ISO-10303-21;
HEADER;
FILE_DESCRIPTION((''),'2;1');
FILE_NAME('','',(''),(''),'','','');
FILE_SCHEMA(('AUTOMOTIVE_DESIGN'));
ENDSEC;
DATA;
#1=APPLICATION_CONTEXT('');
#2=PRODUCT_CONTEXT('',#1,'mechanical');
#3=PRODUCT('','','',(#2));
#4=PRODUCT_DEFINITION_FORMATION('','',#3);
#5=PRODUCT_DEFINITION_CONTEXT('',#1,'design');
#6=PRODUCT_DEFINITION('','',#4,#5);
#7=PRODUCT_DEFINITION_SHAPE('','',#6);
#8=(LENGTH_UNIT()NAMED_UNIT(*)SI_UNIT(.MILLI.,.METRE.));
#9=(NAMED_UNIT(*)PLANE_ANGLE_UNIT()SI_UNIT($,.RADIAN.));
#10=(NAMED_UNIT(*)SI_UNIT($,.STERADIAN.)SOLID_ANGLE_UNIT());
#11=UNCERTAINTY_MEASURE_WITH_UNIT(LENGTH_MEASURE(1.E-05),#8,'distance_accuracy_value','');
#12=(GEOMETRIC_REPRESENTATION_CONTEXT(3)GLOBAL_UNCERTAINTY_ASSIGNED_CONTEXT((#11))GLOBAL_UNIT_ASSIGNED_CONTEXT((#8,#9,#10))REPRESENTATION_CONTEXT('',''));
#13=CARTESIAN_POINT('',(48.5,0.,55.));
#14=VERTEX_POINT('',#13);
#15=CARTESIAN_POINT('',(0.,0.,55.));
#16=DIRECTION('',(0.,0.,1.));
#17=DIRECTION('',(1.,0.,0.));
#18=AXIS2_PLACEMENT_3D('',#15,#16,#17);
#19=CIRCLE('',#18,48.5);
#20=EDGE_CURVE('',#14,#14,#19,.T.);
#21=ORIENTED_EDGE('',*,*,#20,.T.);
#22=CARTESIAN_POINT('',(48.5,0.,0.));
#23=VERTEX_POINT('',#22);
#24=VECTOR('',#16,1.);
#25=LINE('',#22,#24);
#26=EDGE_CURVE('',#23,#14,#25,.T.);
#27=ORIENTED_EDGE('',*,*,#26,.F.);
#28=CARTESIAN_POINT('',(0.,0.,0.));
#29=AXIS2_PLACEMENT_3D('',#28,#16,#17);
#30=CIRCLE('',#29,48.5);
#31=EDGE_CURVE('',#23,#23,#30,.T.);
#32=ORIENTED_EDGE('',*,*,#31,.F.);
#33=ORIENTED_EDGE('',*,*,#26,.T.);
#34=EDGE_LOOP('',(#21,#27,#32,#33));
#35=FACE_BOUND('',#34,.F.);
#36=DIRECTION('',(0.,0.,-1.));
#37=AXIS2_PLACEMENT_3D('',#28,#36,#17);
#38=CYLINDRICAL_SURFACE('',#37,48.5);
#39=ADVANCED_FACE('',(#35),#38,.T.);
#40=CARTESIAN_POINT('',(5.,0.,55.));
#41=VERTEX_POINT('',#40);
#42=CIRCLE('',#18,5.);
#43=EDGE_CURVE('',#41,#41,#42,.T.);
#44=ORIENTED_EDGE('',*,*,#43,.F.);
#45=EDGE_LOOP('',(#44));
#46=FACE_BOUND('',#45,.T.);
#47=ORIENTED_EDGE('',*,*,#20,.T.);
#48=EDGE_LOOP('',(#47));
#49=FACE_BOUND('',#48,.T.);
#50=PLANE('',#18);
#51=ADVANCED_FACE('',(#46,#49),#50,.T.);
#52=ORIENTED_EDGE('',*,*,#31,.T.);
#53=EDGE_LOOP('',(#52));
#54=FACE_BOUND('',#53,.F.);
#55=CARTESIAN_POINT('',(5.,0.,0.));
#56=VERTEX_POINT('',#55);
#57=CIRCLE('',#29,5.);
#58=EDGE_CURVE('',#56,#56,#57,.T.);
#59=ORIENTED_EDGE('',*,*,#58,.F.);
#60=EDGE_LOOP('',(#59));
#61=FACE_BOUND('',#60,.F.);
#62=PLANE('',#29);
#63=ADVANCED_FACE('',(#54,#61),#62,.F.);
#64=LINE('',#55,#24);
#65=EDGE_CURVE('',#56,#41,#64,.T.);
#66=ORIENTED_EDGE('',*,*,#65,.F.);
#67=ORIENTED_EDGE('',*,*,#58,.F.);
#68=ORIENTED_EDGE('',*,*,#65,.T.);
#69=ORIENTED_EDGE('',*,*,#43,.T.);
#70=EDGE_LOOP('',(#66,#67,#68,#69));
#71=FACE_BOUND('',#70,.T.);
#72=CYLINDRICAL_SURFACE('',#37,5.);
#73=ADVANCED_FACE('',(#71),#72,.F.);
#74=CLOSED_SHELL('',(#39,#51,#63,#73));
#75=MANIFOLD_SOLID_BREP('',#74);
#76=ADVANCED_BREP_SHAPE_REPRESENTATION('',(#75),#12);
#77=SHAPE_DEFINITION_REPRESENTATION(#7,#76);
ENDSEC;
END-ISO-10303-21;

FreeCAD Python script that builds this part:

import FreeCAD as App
import Part
import Sketcher

V = App.Vector
Q = App.Units.Quantity

doc = App.newDocument("Part")
body = doc.addObject("PartDesign::Body", "Body")

# Sketch on XY plane
sketch1 = body.newObject("Sketcher::SketchObject", "Sketch")
sketch1.AttachmentSupport = (doc.getObject("XY_Plane"), [""])
sketch1.MapMode = "FlatFace"
sketch1.addGeometry([
    Part.Circle(V(0, 0, 0), V(0, 0, 1), 48),
    Part.Circle(V(0, 0, 0), V(0, 0, 1), 5),
], False)
sketch1.addConstraint([
    Sketcher.Constraint("Coincident", 0, 3, -1, 1),
    Sketcher.Constraint("Coincident", 1, 3, -1, 1),
    Sketcher.Constraint("Diameter", 0, Q("97 mm")),
    Sketcher.Constraint("Diameter", 1, Q("10 mm")),
])
pad1 = body.newObject("PartDesign::Pad", "Pad")
pad1.Profile = sketch1
pad1.Length = 55

doc.recompute()
